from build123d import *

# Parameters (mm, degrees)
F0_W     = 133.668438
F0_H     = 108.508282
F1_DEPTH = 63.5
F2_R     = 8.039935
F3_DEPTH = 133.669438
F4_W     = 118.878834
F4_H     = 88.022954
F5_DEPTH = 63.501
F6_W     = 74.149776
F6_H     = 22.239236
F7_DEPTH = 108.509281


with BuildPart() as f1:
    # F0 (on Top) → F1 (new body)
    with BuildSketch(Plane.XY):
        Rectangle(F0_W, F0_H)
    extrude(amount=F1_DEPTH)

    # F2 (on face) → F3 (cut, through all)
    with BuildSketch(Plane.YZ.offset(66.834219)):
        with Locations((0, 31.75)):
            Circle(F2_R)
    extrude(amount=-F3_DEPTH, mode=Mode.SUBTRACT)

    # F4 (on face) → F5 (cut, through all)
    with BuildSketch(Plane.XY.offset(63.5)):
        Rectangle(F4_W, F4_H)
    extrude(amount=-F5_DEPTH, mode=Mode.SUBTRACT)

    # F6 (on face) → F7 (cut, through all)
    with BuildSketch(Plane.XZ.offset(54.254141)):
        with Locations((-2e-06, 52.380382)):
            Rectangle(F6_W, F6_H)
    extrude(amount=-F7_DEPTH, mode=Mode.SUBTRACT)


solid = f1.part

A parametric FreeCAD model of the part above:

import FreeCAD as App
import Part
import Sketcher
Q = App.Units.Quantity


def add_polygon(sketch, points):
    """Adds a closed chain of lines whose ends are joined by coincident constraints."""
    first, n = sketch.GeometryCount, len(points)
    for a, b in zip(points, points[1:] + points[:1]):
        sketch.addGeometry(Part.LineSegment(App.Vector(*a, 0), App.Vector(*b, 0)), False)
    for i in range(n):
        sketch.addConstraint(Sketcher.Constraint("Coincident", first + i, 2, first + (i + 1) % n, 1))

doc = App.newDocument("Part")
body = doc.addObject("PartDesign::Body", "Body")

sketch1 = body.newObject("Sketcher::SketchObject", "Sketch")
sketch1.AttachmentSupport = (doc.getObject("XY_Plane"), [""])
sketch1.MapMode = "FlatFace"
add_polygon(sketch1, [(-67, 54), (-67, -54), (67, -54), (67, 54)])
sketch1.addConstraint(Sketcher.Constraint("Vertical", 0))
sketch1.addConstraint(Sketcher.Constraint("Horizontal", 1))
sketch1.addConstraint(Sketcher.Constraint("Vertical", 2))
sketch1.addConstraint(Sketcher.Constraint("Horizontal", 3))
sketch1.addConstraint(Sketcher.Constraint("Symmetric", 0, 2, 2, 2, -1, 1))
sketch1.addConstraint(Sketcher.Constraint("DistanceX", 1, 1, 1, 2, Q("133.668438 mm")))
sketch1.addConstraint(Sketcher.Constraint("DistanceY", 0, 2, 0, 1, Q("108.508282 mm")))
pad1 = body.newObject("PartDesign::Pad", "Pad")
pad1.Profile = sketch1
pad1.Length = Q("2.5 in")

sketch2 = body.newObject("Sketcher::SketchObject", "Sketch001")
sketch2.AttachmentSupport = (doc.getObject("YZ_Plane"), [""])
sketch2.MapMode = "FlatFace"
sketch2.AttachmentOffset = App.Placement(App.Vector(0, 0, 66.834219), App.Rotation())
sketch2.addGeometry(Part.Circle(App.Vector(0, 32, 0), App.Vector(0, 0, 1), 8), False)
sketch2.addConstraint(Sketcher.Constraint("PointOnObject", 0, 3, -2))
sketch2.addConstraint(Sketcher.Constraint("DistanceY", -1, 1, 0, 3, Q("1.25 in")))
sketch2.addConstraint(Sketcher.Constraint("Diameter", 0, Q("16.07987 mm")))
pocket1 = body.newObject("PartDesign::Pocket", "Pocket")
pocket1.Profile = sketch2
pocket1.Type = "ThroughAll"

sketch3 = body.newObject("Sketcher::SketchObject", "Sketch002")
sketch3.AttachmentSupport = (doc.getObject("XY_Plane"), [""])
sketch3.MapMode = "FlatFace"
sketch3.AttachmentOffset = App.Placement(App.Vector(0, 0, 2.5 * 25.4), App.Rotation())
add_polygon(sketch3, [(-59, 44), (-59, -44), (59, -44), (59, 44)])
sketch3.addConstraint(Sketcher.Constraint("Vertical", 0))
sketch3.addConstraint(Sketcher.Constraint("Horizontal", 1))
sketch3.addConstraint(Sketcher.Constraint("Vertical", 2))
sketch3.addConstraint(Sketcher.Constraint("Horizontal", 3))
sketch3.addConstraint(Sketcher.Constraint("Symmetric", 0, 2, 2, 2, -1, 1))
sketch3.addConstraint(Sketcher.Constraint("DistanceX", 1, 1, 1, 2, Q("118.878834 mm")))
sketch3.addConstraint(Sketcher.Constraint("DistanceY", 0, 2, 0, 1, Q("88.022954 mm")))
pocket2 = body.newObject("PartDesign::Pocket", "Pocket001")
pocket2.Profile = sketch3
pocket2.Type = "ThroughAll"

sketch4 = body.newObject("Sketcher::SketchObject", "Sketch003")
sketch4.AttachmentSupport = (doc.getObject("XZ_Plane"), [""])
sketch4.MapMode = "FlatFace"
sketch4.AttachmentOffset = App.Placement(App.Vector(0, 0, 54.254141), App.Rotation())
add_polygon(sketch4, [(-37, 64), (-37, 41), (37, 41), (37, 64)])
sketch4.addConstraint(Sketcher.Constraint("Vertical", 0))
sketch4.addConstraint(Sketcher.Constraint("Horizontal", 1))
sketch4.addConstraint(Sketcher.Constraint("Vertical", 2))
sketch4.addConstraint(Sketcher.Constraint("Horizontal", 3))
sketch4.addConstraint(Sketcher.Constraint("DistanceY", -1, 1, 2, 2, Q("2.5 in")))
sketch4.addConstraint(Sketcher.Constraint("DistanceX", 1, 1, 1, 2, Q("74.149776 mm")))
sketch4.addConstraint(Sketcher.Constraint("DistanceY", 0, 2, 0, 1, Q("22.239236 mm")))
sketch4.addConstraint(Sketcher.Constraint("DistanceX", 0, 2, -1, 1, Q("37.07489 mm")))
pocket3 = body.newObject("PartDesign::Pocket", "Pocket002")
pocket3.Profile = sketch4
pocket3.Type = "ThroughAll"

doc.recompute()
